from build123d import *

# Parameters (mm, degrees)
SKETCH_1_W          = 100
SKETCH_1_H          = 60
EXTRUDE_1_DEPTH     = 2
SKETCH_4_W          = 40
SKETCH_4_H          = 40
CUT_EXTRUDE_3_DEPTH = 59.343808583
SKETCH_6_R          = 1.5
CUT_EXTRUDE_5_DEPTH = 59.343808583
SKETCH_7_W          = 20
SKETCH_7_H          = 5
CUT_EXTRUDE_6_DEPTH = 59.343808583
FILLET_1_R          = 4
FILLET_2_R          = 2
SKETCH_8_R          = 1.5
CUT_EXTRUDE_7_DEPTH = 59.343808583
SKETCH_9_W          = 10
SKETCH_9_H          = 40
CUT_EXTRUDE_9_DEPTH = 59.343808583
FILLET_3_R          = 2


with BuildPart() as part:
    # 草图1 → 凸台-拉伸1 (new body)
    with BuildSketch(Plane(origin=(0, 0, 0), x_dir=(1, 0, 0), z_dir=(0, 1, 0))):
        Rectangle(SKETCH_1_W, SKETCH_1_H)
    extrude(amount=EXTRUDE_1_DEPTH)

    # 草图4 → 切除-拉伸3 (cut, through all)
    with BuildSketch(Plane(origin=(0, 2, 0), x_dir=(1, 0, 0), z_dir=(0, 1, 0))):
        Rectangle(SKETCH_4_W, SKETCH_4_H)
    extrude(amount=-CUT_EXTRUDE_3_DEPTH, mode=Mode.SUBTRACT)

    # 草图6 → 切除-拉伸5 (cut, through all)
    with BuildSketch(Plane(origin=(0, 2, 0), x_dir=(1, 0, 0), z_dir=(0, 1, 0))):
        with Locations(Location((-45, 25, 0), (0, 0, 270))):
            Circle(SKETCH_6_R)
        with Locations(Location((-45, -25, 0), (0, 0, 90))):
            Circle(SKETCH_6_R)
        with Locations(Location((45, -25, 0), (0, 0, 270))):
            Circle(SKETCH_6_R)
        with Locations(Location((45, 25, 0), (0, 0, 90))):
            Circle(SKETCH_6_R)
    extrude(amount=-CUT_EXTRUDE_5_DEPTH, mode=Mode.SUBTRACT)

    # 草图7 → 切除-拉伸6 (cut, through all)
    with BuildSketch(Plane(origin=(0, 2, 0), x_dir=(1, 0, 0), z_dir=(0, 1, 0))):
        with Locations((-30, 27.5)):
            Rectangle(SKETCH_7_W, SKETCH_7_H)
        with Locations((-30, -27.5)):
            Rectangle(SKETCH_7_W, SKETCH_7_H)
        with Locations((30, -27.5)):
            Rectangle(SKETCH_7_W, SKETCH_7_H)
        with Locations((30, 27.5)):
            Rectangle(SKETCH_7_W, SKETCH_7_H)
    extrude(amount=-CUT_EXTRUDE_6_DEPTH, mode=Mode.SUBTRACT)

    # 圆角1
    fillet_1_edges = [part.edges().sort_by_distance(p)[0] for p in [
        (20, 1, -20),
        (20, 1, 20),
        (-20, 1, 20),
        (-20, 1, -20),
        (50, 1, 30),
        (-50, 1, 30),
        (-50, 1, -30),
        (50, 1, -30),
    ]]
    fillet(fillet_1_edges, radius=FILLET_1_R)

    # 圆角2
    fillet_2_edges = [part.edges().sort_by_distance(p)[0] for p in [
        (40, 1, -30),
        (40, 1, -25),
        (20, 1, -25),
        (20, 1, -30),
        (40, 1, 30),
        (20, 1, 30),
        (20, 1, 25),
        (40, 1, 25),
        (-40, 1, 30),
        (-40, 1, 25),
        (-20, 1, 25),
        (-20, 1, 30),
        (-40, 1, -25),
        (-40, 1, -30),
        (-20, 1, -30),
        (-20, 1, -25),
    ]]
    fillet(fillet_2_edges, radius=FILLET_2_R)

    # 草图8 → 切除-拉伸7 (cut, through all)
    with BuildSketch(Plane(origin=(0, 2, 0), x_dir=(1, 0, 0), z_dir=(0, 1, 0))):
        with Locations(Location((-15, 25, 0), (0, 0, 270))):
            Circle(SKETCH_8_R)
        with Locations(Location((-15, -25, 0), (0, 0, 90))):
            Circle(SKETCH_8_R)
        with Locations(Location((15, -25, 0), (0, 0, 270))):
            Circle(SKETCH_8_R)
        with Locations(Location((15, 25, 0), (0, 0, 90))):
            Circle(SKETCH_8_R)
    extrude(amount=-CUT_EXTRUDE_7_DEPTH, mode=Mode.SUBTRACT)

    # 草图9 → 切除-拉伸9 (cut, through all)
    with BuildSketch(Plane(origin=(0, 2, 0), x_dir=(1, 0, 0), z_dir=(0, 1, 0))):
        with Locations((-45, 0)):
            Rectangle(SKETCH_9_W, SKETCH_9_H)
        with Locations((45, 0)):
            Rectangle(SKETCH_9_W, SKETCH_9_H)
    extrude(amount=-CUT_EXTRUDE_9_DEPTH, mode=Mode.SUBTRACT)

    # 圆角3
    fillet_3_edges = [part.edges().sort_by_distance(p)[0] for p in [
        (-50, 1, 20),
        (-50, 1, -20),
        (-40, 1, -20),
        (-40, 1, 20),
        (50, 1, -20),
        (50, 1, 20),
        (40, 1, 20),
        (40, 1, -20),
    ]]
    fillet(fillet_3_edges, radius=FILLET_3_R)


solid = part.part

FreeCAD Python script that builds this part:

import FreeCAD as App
import Part
import Sketcher


def edges_at(feature, points):
    """Names of the edges that pass closest to the given points."""
    edges = feature.Shape.Edges
    near = lambda p: min(range(len(edges)), key=lambda i: edges[i].distToShape(Part.Vertex(*p))[0])
    return sorted({f"Edge{near(p) + 1}" for p in points})

doc = App.newDocument("Part")
body = doc.addObject("PartDesign::Body", "Body")

sketch1 = body.newObject("Sketcher::SketchObject", "Sketch")
sketch1.AttachmentSupport = (doc.getObject("XZ_Plane"), [""])
sketch1.MapMode = "FlatFace"
sketch1.addGeometry(Part.LineSegment(App.Vector(-50, -30, 0), App.Vector(-50, 30, 0)), False)
sketch1.addGeometry(Part.LineSegment(App.Vector(-50, 30, 0), App.Vector(50, 30, 0)), False)
sketch1.addGeometry(Part.LineSegment(App.Vector(50, 30, 0), App.Vector(50, -30, 0)), False)
sketch1.addGeometry(Part.LineSegment(App.Vector(50, -30, 0), App.Vector(-50, -30, 0)), False)
sketch1.addConstraint(Sketcher.Constraint("Coincident", 0, 2, 1, 1))
sketch1.addConstraint(Sketcher.Constraint("Coincident", 1, 2, 2, 1))
sketch1.addConstraint(Sketcher.Constraint("Coincident", 2, 2, 3, 1))
sketch1.addConstraint(Sketcher.Constraint("Coincident", 3, 2, 0, 1))
sketch1.addConstraint(Sketcher.Constraint("Vertical", 0))
sketch1.addConstraint(Sketcher.Constraint("Horizontal", 1))
sketch1.addConstraint(Sketcher.Constraint("Vertical", 2))
sketch1.addConstraint(Sketcher.Constraint("Horizontal", 3))
sketch1.addConstraint(Sketcher.Constraint("Symmetric", 0, 2, 2, 2, -1, 1))
sketch1.addConstraint(Sketcher.Constraint("DistanceX", 1, 1, 1, 2, 100.0))
sketch1.addConstraint(Sketcher.Constraint("DistanceY", 0, 1, 0, 2, 60.0))
pad1 = body.newObject("PartDesign::Pad", "Pad")
pad1.Profile = sketch1
pad1.Length = 2
pad1.Reversed = True

sketch2 = body.newObject("Sketcher::SketchObject", "Sketch001")
sketch2.AttachmentSupport = (doc.getObject("XZ_Plane"), [""])
sketch2.MapMode = "FlatFace"
sketch2.AttachmentOffset = App.Placement(App.Vector(0, 0, -2), App.Rotation())
sketch2.addGeometry(Part.LineSegment(App.Vector(-20, -20, 0), App.Vector(-20, 20, 0)), False)
sketch2.addGeometry(Part.LineSegment(App.Vector(-20, 20, 0), App.Vector(20, 20, 0)), False)
sketch2.addGeometry(Part.LineSegment(App.Vector(20, 20, 0), App.Vector(20, -20, 0)), False)
sketch2.addGeometry(Part.LineSegment(App.Vector(20, -20, 0), App.Vector(-20, -20, 0)), False)
sketch2.addConstraint(Sketcher.Constraint("Coincident", 0, 2, 1, 1))
sketch2.addConstraint(Sketcher.Constraint("Coincident", 1, 2, 2, 1))
sketch2.addConstraint(Sketcher.Constraint("Coincident", 2, 2, 3, 1))
sketch2.addConstraint(Sketcher.Constraint("Coincident", 3, 2, 0, 1))
sketch2.addConstraint(Sketcher.Constraint("Vertical", 0))
sketch2.addConstraint(Sketcher.Constraint("Horizontal", 1))
sketch2.addConstraint(Sketcher.Constraint("Vertical", 2))
sketch2.addConstraint(Sketcher.Constraint("Horizontal", 3))
sketch2.addConstraint(Sketcher.Constraint("Symmetric", 0, 2, 2, 2, -1, 1))
sketch2.addConstraint(Sketcher.Constraint("Equal", 3, 0))
sketch2.addConstraint(Sketcher.Constraint("DistanceX", 1, 1, 1, 2, 40.0))
pocket1 = body.newObject("PartDesign::Pocket", "Pocket")
pocket1.Profile = sketch2
pocket1.Type = "ThroughAll"
pocket1.Reversed = True

sketch3 = body.newObject("Sketcher::SketchObject", "Sketch002")
sketch3.AttachmentSupport = (doc.getObject("XZ_Plane"), [""])
sketch3.MapMode = "FlatFace"
sketch3.AttachmentOffset = App.Placement(App.Vector(0, 0, -2), App.Rotation())
sketch3.addGeometry(Part.Circle(App.Vector(-45, -25, 0), App.Vector(0, 0, 1), 1.5), False)
sketch3.addGeometry(Part.Circle(App.Vector(-45, 25, 0), App.Vector(0, 0, 1), 1.5), False)
sketch3.addGeometry(Part.Circle(App.Vector(45, 25, 0), App.Vector(0, 0, 1), 1.5), False)
sketch3.addGeometry(Part.Circle(App.Vector(45, -25, 0), App.Vector(0, 0, 1), 1.5), False)
sketch3.addConstraint(Sketcher.Constraint("Equal", 0, 1))
sketch3.addConstraint(Sketcher.Constraint("Equal", 1, 2))
sketch3.addConstraint(Sketcher.Constraint("Equal", 2, 3))
sketch3.addConstraint(Sketcher.Constraint("Symmetric", 0, 3, 2, 3, -1, 1))
sketch3.addConstraint(Sketcher.Constraint("Symmetric", 1, 3, 3, 3, -1, 1))
sketch3.addConstraint(Sketcher.Constraint("Symmetric", 1, 3, 2, 3, -2))
sketch3.addConstraint(Sketcher.Constraint("Diameter", 0, 3.0))
sketch3.addConstraint(Sketcher.Constraint("DistanceX", 0, 3, -1, 1, 45.0))
sketch3.addConstraint(Sketcher.Constraint("DistanceY", 0, 3, -1, 1, 25.0))
pocket2 = body.newObject("PartDesign::Pocket", "Pocket001")
pocket2.Profile = sketch3
pocket2.Type = "ThroughAll"
pocket2.Reversed = True

sketch4 = body.newObject("Sketcher::SketchObject", "Sketch003")
sketch4.AttachmentSupport = (doc.getObject("XZ_Plane"), [""])
sketch4.MapMode = "FlatFace"
sketch4.AttachmentOffset = App.Placement(App.Vector(0, 0, -2), App.Rotation())
sketch4.addGeometry(Part.LineSegment(App.Vector(-40, -30, 0), App.Vector(-40, -25, 0)), False)
sketch4.addGeometry(Part.LineSegment(App.Vector(-40, -25, 0), App.Vector(-20, -25, 0)), False)
sketch4.addGeometry(Part.LineSegment(App.Vector(-20, -25, 0), App.Vector(-20, -30, 0)), False)
sketch4.addGeometry(Part.LineSegment(App.Vector(-20, -30, 0), App.Vector(-40, -30, 0)), False)
sketch4.addGeometry(Part.LineSegment(App.Vector(-40, 25, 0), App.Vector(-40, 30, 0)), False)
sketch4.addGeometry(Part.LineSegment(App.Vector(-40, 30, 0), App.Vector(-20, 30, 0)), False)
sketch4.addGeometry(Part.LineSegment(App.Vector(-20, 30, 0), App.Vector(-20, 25, 0)), False)
sketch4.addGeometry(Part.LineSegment(App.Vector(-20, 25, 0), App.Vector(-40, 25, 0)), False)
sketch4.addGeometry(Part.LineSegment(App.Vector(20, 25, 0), App.Vector(20, 30, 0)), False)
sketch4.addGeometry(Part.LineSegment(App.Vector(20, 30, 0), App.Vector(40, 30, 0)), False)
sketch4.addGeometry(Part.LineSegment(App.Vector(40, 30, 0), App.Vector(40, 25, 0)), False)
sketch4.addGeometry(Part.LineSegment(App.Vector(40, 25, 0), App.Vector(20, 25, 0)), False)
sketch4.addGeometry(Part.LineSegment(App.Vector(20, -30, 0), App.Vector(20, -25, 0)), False)
sketch4.addGeometry(Part.LineSegment(App.Vector(20, -25, 0), App.Vector(40, -25, 0)), False)
sketch4.addGeometry(Part.LineSegment(App.Vector(40, -25, 0), App.Vector(40, -30, 0)), False)
sketch4.addGeometry(Part.LineSegment(App.Vector(40, -30, 0), App.Vector(20, -30, 0)), False)
sketch4.addConstraint(Sketcher.Constraint("Coincident", 0, 2, 1, 1))
sketch4.addConstraint(Sketcher.Constraint("Coincident", 1, 2, 2, 1))
sketch4.addConstraint(Sketcher.Constraint("Coincident", 2, 2, 3, 1))
sketch4.addConstraint(Sketcher.Constraint("Coincident", 3, 2, 0, 1))
sketch4.addConstraint(Sketcher.Constraint("Coincident", 4, 2, 5, 1))
sketch4.addConstraint(Sketcher.Constraint("Coincident", 5, 2, 6, 1))
sketch4.addConstraint(Sketcher.Constraint("Coincident", 6, 2, 7, 1))
sketch4.addConstraint(Sketcher.Constraint("Coincident", 7, 2, 4, 1))
sketch4.addConstraint(Sketcher.Constraint("Coincident", 8, 2, 9, 1))
sketch4.addConstraint(Sketcher.Constraint("Coincident", 9, 2, 10, 1))
sketch4.addConstraint(Sketcher.Constraint("Coincident", 10, 2, 11, 1))
sketch4.addConstraint(Sketcher.Constraint("Coincident", 11, 2, 8, 1))
sketch4.addConstraint(Sketcher.Constraint("Coincident", 12, 2, 13, 1))
sketch4.addConstraint(Sketcher.Constraint("Coincident", 13, 2, 14, 1))
sketch4.addConstraint(Sketcher.Constraint("Coincident", 14, 2, 15, 1))
sketch4.addConstraint(Sketcher.Constraint("Coincident", 15, 2, 12, 1))
sketch4.addConstraint(Sketcher.Constraint("Vertical", 0))
sketch4.addConstraint(Sketcher.Constraint("Horizontal", 1))
sketch4.addConstraint(Sketcher.Constraint("Vertical", 2))
sketch4.addConstraint(Sketcher.Constraint("Horizontal", 3))
sketch4.addConstraint(Sketcher.Constraint("Vertical", 4))
sketch4.addConstraint(Sketcher.Constraint("Horizontal", 5))
sketch4.addConstraint(Sketcher.Constraint("Vertical", 6))
sketch4.addConstraint(Sketcher.Constraint("Horizontal", 7))
sketch4.addConstraint(Sketcher.Constraint("Vertical", 8))
sketch4.addConstraint(Sketcher.Constraint("Horizontal", 9))
sketch4.addConstraint(Sketcher.Constraint("Vertical", 10))
sketch4.addConstraint(Sketcher.Constraint("Horizontal", 11))
sketch4.addConstraint(Sketcher.Constraint("Vertical", 12))
sketch4.addConstraint(Sketcher.Constraint("Horizontal", 13))
sketch4.addConstraint(Sketcher.Constraint("Vertical", 14))
sketch4.addConstraint(Sketcher.Constraint("Horizontal", 15))
sketch4.addConstraint(Sketcher.Constraint("Symmetric", 2, 2, 8, 2, -1, 1))
sketch4.addConstraint(Sketcher.Constraint("Symmetric", 0, 2, 10, 2, -1, 1))
sketch4.addConstraint(Sketcher.Constraint("Symmetric", 6, 2, 12, 2, -1, 1))
sketch4.addConstraint(Sketcher.Constraint("Symmetric", 4, 2, 14, 2, -1, 1))
sketch4.addConstraint(Sketcher.Constraint("Symmetric", 5, 2, 8, 2, -2))
sketch4.addConstraint(Sketcher.Constraint("Symmetric", 7, 2, 10, 2, -2))
sketch4.addConstraint(Sketcher.Constraint("DistanceX", 1, 1, 1, 2, 20.0))
sketch4.addConstraint(Sketcher.Constraint("DistanceY", 0, 1, 0, 2, 5.0))
sketch4.addConstraint(Sketcher.Constraint("DistanceX", 0, 2, -1, 1, 40.0))
sketch4.addConstraint(Sketcher.Constraint("DistanceY", 0, 2, -1, 1, 25.0))
pocket3 = body.newObject("PartDesign::Pocket", "Pocket002")
pocket3.Profile = sketch4
pocket3.Type = "ThroughAll"
pocket3.Reversed = True
doc.recompute()

fillet = body.newObject("PartDesign::Fillet", "Fillet")
fillet.Base = (pocket3, edges_at(pocket3, [
    (20, 1, -20),
    (20, 1, 20),
    (-20, 1, 20),
    (-20, 1, -20),
    (50, 1, 30),
    (-50, 1, 30),
    (-50, 1, -30),
    (50, 1, -30),
]))
fillet.Radius = 4
doc.recompute()

fillet2 = body.newObject("PartDesign::Fillet", "Fillet001")
fillet2.Base = (fillet, edges_at(fillet, [
    (40, 1, -30),
    (40, 1, -25),
    (20, 1, -25),
    (20, 1, -30),
    (40, 1, 30),
    (20, 1, 30),
    (20, 1, 25),
    (40, 1, 25),
    (-40, 1, 30),
    (-40, 1, 25),
    (-20, 1, 25),
    (-20, 1, 30),
    (-40, 1, -25),
    (-40, 1, -30),
    (-20, 1, -30),
    (-20, 1, -25),
]))
fillet2.Radius = 2

sketch5 = body.newObject("Sketcher::SketchObject", "Sketch004")
sketch5.AttachmentSupport = (doc.getObject("XZ_Plane"), [""])
sketch5.MapMode = "FlatFace"
sketch5.AttachmentOffset = App.Placement(App.Vector(0, 0, -2), App.Rotation())
sketch5.addGeometry(Part.Circle(App.Vector(-15, -25, 0), App.Vector(0, 0, 1), 1.5), False)
sketch5.addGeometry(Part.Circle(App.Vector(-15, 25, 0), App.Vector(0, 0, 1), 1.5), False)
sketch5.addGeometry(Part.Circle(App.Vector(15, 25, 0), App.Vector(0, 0, 1), 1.5), False)
sketch5.addGeometry(Part.Circle(App.Vector(15, -25, 0), App.Vector(0, 0, 1), 1.5), False)
sketch5.addConstraint(Sketcher.Constraint("Equal", 0, 1))
sketch5.addConstraint(Sketcher.Constraint("Equal", 1, 2))
sketch5.addConstraint(Sketcher.Constraint("Equal", 2, 3))
sketch5.addConstraint(Sketcher.Constraint("Symmetric", 0, 3, 2, 3, -1, 1))
sketch5.addConstraint(Sketcher.Constraint("Symmetric", 1, 3, 3, 3, -1, 1))
sketch5.addConstraint(Sketcher.Constraint("Symmetric", 1, 3, 2, 3, -2))
sketch5.addConstraint(Sketcher.Constraint("Diameter", 0, 3.0))
sketch5.addConstraint(Sketcher.Constraint("DistanceX", 0, 3, -1, 1, 15.0))
sketch5.addConstraint(Sketcher.Constraint("DistanceY", 0, 3, -1, 1, 25.0))
pocket4 = body.newObject("PartDesign::Pocket", "Pocket003")
pocket4.Profile = sketch5
pocket4.Type = "ThroughAll"
pocket4.Reversed = True

sketch6 = body.newObject("Sketcher::SketchObject", "Sketch005")
sketch6.AttachmentSupport = (doc.getObject("XZ_Plane"), [""])
sketch6.MapMode = "FlatFace"
sketch6.AttachmentOffset = App.Placement(App.Vector(0, 0, -2), App.Rotation())
sketch6.addGeometry(Part.LineSegment(App.Vector(-50, -20, 0), App.Vector(-50, 20, 0)), False)
sketch6.addGeometry(Part.LineSegment(App.Vector(-50, 20, 0), App.Vector(-40, 20, 0)), False)
sketch6.addGeometry(Part.LineSegment(App.Vector(-40, 20, 0), App.Vector(-40, -20, 0)), False)
sketch6.addGeometry(Part.LineSegment(App.Vector(-40, -20, 0), App.Vector(-50, -20, 0)), False)
sketch6.addGeometry(Part.LineSegment(App.Vector(40, -20, 0), App.Vector(40, 20, 0)), False)
sketch6.addGeometry(Part.LineSegment(App.Vector(40, 20, 0), App.Vector(50, 20, 0)), False)
sketch6.addGeometry(Part.LineSegment(App.Vector(50, 20, 0), App.Vector(50, -20, 0)), False)
sketch6.addGeometry(Part.LineSegment(App.Vector(50, -20, 0), App.Vector(40, -20, 0)), False)
sketch6.addConstraint(Sketcher.Constraint("Coincident", 0, 2, 1, 1))
sketch6.addConstraint(Sketcher.Constraint("Coincident", 1, 2, 2, 1))
sketch6.addConstraint(Sketcher.Constraint("Coincident", 2, 2, 3, 1))
sketch6.addConstraint(Sketcher.Constraint("Coincident", 3, 2, 0, 1))
sketch6.addConstraint(Sketcher.Constraint("Coincident", 4, 2, 5, 1))
sketch6.addConstraint(Sketcher.Constraint("Coincident", 5, 2, 6, 1))
sketch6.addConstraint(Sketcher.Constraint("Coincident", 6, 2, 7, 1))
sketch6.addConstraint(Sketcher.Constraint("Coincident", 7, 2, 4, 1))
sketch6.addConstraint(Sketcher.Constraint("Vertical", 0))
sketch6.addConstraint(Sketcher.Constraint("Horizontal", 1))
sketch6.addConstraint(Sketcher.Constraint("Vertical", 2))
sketch6.addConstraint(Sketcher.Constraint("Horizontal", 3))
sketch6.addConstraint(Sketcher.Constraint("Vertical", 4))
sketch6.addConstraint(Sketcher.Constraint("Horizontal", 5))
sketch6.addConstraint(Sketcher.Constraint("Vertical", 6))
sketch6.addConstraint(Sketcher.Constraint("Horizontal", 7))
sketch6.addConstraint(Sketcher.Constraint("Symmetric", 2, 2, 4, 2, -1, 1))
sketch6.addConstraint(Sketcher.Constraint("Symmetric", 0, 2, 6, 2, -1, 1))
sketch6.addConstraint(Sketcher.Constraint("Horizontal", 1, 2, 4, 2))
sketch6.addConstraint(Sketcher.Constraint("DistanceX", 1, 1, 1, 2, 10.0))
sketch6.addConstraint(Sketcher.Constraint("DistanceY", 0, 1, 0, 2, 40.0))
sketch6.addConstraint(Sketcher.Constraint("DistanceX", 0, 2, -1, 1, 50.0))
pocket5 = body.newObject("PartDesign::Pocket", "Pocket004")
pocket5.Profile = sketch6
pocket5.Type = "ThroughAll"
pocket5.Reversed = True
doc.recompute()

fillet3 = body.newObject("PartDesign::Fillet", "Fillet002")
fillet3.Base = (pocket5, edges_at(pocket5, [
    (-50, 1, 20),
    (-50, 1, -20),
    (-40, 1, -20),
    (-40, 1, 20),
    (50, 1, -20),
    (50, 1, 20),
    (40, 1, 20),
    (40, 1, -20),
]))
fillet3.Radius = 2

doc.recompute()
